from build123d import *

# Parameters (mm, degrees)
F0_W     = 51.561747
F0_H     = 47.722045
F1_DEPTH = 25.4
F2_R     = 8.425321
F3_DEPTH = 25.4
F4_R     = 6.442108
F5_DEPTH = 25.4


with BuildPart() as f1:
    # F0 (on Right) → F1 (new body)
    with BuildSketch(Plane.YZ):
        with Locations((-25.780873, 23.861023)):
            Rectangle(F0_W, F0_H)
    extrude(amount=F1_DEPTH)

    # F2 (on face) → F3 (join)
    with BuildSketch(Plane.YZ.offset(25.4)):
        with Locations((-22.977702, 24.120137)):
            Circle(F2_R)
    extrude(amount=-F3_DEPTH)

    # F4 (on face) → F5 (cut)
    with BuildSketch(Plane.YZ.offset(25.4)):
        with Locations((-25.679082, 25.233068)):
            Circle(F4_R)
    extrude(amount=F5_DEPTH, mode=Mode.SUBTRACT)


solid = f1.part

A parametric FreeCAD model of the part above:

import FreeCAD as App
import Part
import Sketcher

V = App.Vector
Q = App.Units.Quantity


def add_polygon(sketch, points):
    """Adds a closed chain of lines whose ends are joined by coincident constraints."""
    first, n = sketch.GeometryCount, len(points)
    for a, b in zip(points, points[1:] + points[:1]):
        sketch.addGeometry(Part.LineSegment(App.Vector(*a, 0), App.Vector(*b, 0)), False)
    for i in range(n):
        sketch.addConstraint(Sketcher.Constraint("Coincident", first + i, 2, first + (i + 1) % n, 1))

doc = App.newDocument("Part")
body = doc.addObject("PartDesign::Body", "Body")

# Sketch on YZ plane
sketch1 = doc.addObject("Sketcher::SketchObject", "Sketch")
body.addObject(sketch1)
sketch1.AttachmentSupport = (doc.YZ_Plane, [""])
sketch1.MapMode = "FlatFace"
add_polygon(sketch1, [(-51.561746, 47.722046), (-51.561746, 0), (0, 0), (0, 47.722046)])  # lines 0-3
sketch1.addConstraint(Sketcher.Constraint("Vertical", 0))
sketch1.addConstraint(Sketcher.Constraint("Horizontal", 1))
sketch1.addConstraint(Sketcher.Constraint("Vertical", 2))
sketch1.addConstraint(Sketcher.Constraint("Horizontal", 3))
sketch1.addConstraint(Sketcher.Constraint("Coincident", 1, 2, -1, 1))
sketch1.addConstraint(Sketcher.Constraint("DistanceX", 1, 1, 1, 2, 51.561747))
sketch1.addConstraint(Sketcher.Constraint("DistanceY", 0, 2, 0, 1, 47.722045))
pad1 = doc.addObject("PartDesign::Pad", "Pad")
body.addObject(pad1)
pad1.Profile = sketch1
pad1.Length = Q("1 in")

# Sketch on YZ plane
sketch2 = doc.addObject("Sketcher::SketchObject", "Sketch001")
body.addObject(sketch2)
sketch2.AttachmentSupport = (doc.YZ_Plane, [""])
sketch2.MapMode = "FlatFace"
sketch2.AttachmentOffset = App.Placement(V(0, 0, 1 * 25.4), App.Rotation())
sketch2.addGeometry(Part.Circle(V(-22.977702, 24.120137, 0), V(0, 0, 1), 8.425321), False)
sketch2.addConstraint(Sketcher.Constraint("Diameter", 0, 16.850642))
sketch2.addConstraint(Sketcher.Constraint("DistanceX", 0, 3, -1, 1, 22.977702))
sketch2.addConstraint(Sketcher.Constraint("DistanceY", -1, 1, 0, 3, 24.120137))
pad2 = doc.addObject("PartDesign::Pad", "Pad001")
body.addObject(pad2)
pad2.Profile = sketch2
pad2.Length = Q("1 in")
pad2.Reversed = True

# Sketch on YZ plane
sketch3 = doc.addObject("Sketcher::SketchObject", "Sketch002")
body.addObject(sketch3)
sketch3.AttachmentSupport = (doc.YZ_Plane, [""])
sketch3.MapMode = "FlatFace"
sketch3.AttachmentOffset = App.Placement(V(0, 0, 1 * 25.4), App.Rotation())
sketch3.addGeometry(Part.Circle(V(-25.679082, 25.233068, 0), V(0, 0, 1), 6.442108), False)
sketch3.addConstraint(Sketcher.Constraint("Diameter", 0, 12.884216))
sketch3.addConstraint(Sketcher.Constraint("DistanceX", 0, 3, -1, 1, 25.679082))
sketch3.addConstraint(Sketcher.Constraint("DistanceY", -1, 1, 0, 3, 25.233068))
pocket1 = doc.addObject("PartDesign::Pocket", "Pocket")
body.addObject(pocket1)
pocket1.Profile = sketch3
pocket1.Length = Q("1 in")
pocket1.Reversed = True

doc.recompute()
